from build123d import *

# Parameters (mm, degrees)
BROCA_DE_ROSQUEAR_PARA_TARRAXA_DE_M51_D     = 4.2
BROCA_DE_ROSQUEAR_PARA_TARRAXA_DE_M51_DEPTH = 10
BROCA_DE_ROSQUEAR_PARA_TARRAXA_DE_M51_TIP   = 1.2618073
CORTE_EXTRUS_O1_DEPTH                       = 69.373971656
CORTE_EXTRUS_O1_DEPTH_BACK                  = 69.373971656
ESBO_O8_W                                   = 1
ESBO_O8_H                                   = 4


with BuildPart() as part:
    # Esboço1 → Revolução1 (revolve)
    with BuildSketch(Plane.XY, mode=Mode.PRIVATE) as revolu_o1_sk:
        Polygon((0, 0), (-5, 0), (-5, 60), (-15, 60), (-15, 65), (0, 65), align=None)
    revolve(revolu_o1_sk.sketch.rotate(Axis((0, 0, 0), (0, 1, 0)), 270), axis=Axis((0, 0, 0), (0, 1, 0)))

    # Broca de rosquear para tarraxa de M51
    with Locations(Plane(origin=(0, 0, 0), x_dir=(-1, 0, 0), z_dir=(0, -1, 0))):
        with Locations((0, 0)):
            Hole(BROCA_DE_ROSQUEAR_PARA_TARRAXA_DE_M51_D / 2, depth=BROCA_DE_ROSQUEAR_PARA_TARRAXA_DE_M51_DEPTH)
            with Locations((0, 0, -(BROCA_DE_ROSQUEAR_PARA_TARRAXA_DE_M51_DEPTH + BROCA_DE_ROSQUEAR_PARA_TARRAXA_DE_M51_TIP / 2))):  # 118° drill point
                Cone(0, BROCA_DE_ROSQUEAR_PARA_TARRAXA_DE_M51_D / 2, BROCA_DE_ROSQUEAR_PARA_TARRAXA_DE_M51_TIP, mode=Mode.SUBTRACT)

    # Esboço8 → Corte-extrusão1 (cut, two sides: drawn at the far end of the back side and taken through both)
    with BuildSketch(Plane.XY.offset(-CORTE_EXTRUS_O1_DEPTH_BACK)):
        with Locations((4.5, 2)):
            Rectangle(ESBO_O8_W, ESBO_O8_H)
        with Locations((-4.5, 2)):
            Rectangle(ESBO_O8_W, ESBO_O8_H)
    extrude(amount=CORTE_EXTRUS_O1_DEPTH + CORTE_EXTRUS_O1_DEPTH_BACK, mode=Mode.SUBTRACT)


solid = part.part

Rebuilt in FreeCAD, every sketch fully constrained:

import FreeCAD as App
import Part
import Sketcher
from FreeCAD import Vector


def add_polygon(sketch, points):
    """Adds a closed chain of lines whose ends are joined by coincident constraints."""
    first, n = sketch.GeometryCount, len(points)
    for a, b in zip(points, points[1:] + points[:1]):
        sketch.addGeometry(Part.LineSegment(App.Vector(*a, 0), App.Vector(*b, 0)), False)
    for i in range(n):
        sketch.addConstraint(Sketcher.Constraint("Coincident", first + i, 2, first + (i + 1) % n, 1))

doc = App.newDocument("Part")
body = doc.addObject("PartDesign::Body", "Body")

sketch1 = body.newObject("Sketcher::SketchObject", "Sketch")
sketch1.AttachmentSupport = (doc.getObject("XY_Plane"), [""])
sketch1.MapMode = "FlatFace"
add_polygon(sketch1, [(-5, 0), (0, 0), (0, 65), (-15, 65), (-15, 60), (-5, 60)])
sketch1.addConstraint([
    Sketcher.Constraint("Horizontal", 0),
    Sketcher.Constraint("Vertical", 1),
    Sketcher.Constraint("Horizontal", 2),
    Sketcher.Constraint("Vertical", 3),
    Sketcher.Constraint("Horizontal", 4),
    Sketcher.Constraint("Vertical", 5),
    Sketcher.Constraint("Coincident", 0, 2, -1, 1),
    Sketcher.Constraint("Equal", 0, 3),
    Sketcher.Constraint("DistanceX", 0, 1, 0, 2, 5.0),
    Sketcher.Constraint("DistanceX", 2, 2, 2, 1, 15.0),
    Sketcher.Constraint("DistanceY", 1, 1, 1, 2, 65.0),
])
revolution = body.newObject("PartDesign::Revolution", "Revolution")
revolution.Profile = sketch1
revolution.ReferenceAxis = (sketch1, ["V_Axis"])
revolution.Angle = 360

sketch2 = body.newObject("Sketcher::SketchObject", "Sketch001")
sketch2.AttachmentSupport = (doc.getObject("XZ_Plane"), [""])
sketch2.MapMode = "FlatFace"
sketch2.addGeometry(Part.Circle(Vector(0, 0, 0), Vector(0, 0, 1), 2.1), False)
sketch2.addConstraint([
    Sketcher.Constraint("Coincident", 0, 3, -1, 1),
    Sketcher.Constraint("Diameter", 0, 4.2),
])
doc.recompute()
hole = body.newObject("PartDesign::Hole", "Hole")
hole.Profile = sketch2
hole.ThreadType = "None"
hole.Diameter = 4.2
hole.DepthType = "Dimension"
hole.Depth = 10
hole.DrillPoint = "Angled"
hole.DrillPointAngle = 118

sketch3 = body.newObject("Sketcher::SketchObject", "Sketch002")
sketch3.AttachmentSupport = (doc.getObject("XY_Plane"), [""])
sketch3.MapMode = "FlatFace"
add_polygon(sketch3, [(4, 4), (4, 0), (5, 0), (5, 4)])
add_polygon(sketch3, [(-5, 4), (-5, 0), (-4, 0), (-4, 4)])
sketch3.addConstraint([
    Sketcher.Constraint("Vertical", 0),
    Sketcher.Constraint("Horizontal", 1),
    Sketcher.Constraint("Vertical", 2),
    Sketcher.Constraint("Horizontal", 3),
    Sketcher.Constraint("Vertical", 4),
    Sketcher.Constraint("Horizontal", 5),
    Sketcher.Constraint("Vertical", 6),
    Sketcher.Constraint("Horizontal", 7),
    Sketcher.Constraint("Symmetric", 1, 2, 4, 2, -1, 1),
    Sketcher.Constraint("Symmetric", 0, 2, 5, 2, -2),
    Sketcher.Constraint("Horizontal", 3, 2, 6, 2),
    Sketcher.Constraint("DistanceX", 1, 1, 1, 2, 1.0),
    Sketcher.Constraint("DistanceY", 0, 2, 0, 1, 4.0),
    Sketcher.Constraint("DistanceX", -1, 1, 0, 2, 4.0),
])
pocket1 = body.newObject("PartDesign::Pocket", "Pocket")
pocket1.Profile = sketch3
pocket1.Type = "ThroughAll"
pocket1.Midplane = True

doc.recompute()
